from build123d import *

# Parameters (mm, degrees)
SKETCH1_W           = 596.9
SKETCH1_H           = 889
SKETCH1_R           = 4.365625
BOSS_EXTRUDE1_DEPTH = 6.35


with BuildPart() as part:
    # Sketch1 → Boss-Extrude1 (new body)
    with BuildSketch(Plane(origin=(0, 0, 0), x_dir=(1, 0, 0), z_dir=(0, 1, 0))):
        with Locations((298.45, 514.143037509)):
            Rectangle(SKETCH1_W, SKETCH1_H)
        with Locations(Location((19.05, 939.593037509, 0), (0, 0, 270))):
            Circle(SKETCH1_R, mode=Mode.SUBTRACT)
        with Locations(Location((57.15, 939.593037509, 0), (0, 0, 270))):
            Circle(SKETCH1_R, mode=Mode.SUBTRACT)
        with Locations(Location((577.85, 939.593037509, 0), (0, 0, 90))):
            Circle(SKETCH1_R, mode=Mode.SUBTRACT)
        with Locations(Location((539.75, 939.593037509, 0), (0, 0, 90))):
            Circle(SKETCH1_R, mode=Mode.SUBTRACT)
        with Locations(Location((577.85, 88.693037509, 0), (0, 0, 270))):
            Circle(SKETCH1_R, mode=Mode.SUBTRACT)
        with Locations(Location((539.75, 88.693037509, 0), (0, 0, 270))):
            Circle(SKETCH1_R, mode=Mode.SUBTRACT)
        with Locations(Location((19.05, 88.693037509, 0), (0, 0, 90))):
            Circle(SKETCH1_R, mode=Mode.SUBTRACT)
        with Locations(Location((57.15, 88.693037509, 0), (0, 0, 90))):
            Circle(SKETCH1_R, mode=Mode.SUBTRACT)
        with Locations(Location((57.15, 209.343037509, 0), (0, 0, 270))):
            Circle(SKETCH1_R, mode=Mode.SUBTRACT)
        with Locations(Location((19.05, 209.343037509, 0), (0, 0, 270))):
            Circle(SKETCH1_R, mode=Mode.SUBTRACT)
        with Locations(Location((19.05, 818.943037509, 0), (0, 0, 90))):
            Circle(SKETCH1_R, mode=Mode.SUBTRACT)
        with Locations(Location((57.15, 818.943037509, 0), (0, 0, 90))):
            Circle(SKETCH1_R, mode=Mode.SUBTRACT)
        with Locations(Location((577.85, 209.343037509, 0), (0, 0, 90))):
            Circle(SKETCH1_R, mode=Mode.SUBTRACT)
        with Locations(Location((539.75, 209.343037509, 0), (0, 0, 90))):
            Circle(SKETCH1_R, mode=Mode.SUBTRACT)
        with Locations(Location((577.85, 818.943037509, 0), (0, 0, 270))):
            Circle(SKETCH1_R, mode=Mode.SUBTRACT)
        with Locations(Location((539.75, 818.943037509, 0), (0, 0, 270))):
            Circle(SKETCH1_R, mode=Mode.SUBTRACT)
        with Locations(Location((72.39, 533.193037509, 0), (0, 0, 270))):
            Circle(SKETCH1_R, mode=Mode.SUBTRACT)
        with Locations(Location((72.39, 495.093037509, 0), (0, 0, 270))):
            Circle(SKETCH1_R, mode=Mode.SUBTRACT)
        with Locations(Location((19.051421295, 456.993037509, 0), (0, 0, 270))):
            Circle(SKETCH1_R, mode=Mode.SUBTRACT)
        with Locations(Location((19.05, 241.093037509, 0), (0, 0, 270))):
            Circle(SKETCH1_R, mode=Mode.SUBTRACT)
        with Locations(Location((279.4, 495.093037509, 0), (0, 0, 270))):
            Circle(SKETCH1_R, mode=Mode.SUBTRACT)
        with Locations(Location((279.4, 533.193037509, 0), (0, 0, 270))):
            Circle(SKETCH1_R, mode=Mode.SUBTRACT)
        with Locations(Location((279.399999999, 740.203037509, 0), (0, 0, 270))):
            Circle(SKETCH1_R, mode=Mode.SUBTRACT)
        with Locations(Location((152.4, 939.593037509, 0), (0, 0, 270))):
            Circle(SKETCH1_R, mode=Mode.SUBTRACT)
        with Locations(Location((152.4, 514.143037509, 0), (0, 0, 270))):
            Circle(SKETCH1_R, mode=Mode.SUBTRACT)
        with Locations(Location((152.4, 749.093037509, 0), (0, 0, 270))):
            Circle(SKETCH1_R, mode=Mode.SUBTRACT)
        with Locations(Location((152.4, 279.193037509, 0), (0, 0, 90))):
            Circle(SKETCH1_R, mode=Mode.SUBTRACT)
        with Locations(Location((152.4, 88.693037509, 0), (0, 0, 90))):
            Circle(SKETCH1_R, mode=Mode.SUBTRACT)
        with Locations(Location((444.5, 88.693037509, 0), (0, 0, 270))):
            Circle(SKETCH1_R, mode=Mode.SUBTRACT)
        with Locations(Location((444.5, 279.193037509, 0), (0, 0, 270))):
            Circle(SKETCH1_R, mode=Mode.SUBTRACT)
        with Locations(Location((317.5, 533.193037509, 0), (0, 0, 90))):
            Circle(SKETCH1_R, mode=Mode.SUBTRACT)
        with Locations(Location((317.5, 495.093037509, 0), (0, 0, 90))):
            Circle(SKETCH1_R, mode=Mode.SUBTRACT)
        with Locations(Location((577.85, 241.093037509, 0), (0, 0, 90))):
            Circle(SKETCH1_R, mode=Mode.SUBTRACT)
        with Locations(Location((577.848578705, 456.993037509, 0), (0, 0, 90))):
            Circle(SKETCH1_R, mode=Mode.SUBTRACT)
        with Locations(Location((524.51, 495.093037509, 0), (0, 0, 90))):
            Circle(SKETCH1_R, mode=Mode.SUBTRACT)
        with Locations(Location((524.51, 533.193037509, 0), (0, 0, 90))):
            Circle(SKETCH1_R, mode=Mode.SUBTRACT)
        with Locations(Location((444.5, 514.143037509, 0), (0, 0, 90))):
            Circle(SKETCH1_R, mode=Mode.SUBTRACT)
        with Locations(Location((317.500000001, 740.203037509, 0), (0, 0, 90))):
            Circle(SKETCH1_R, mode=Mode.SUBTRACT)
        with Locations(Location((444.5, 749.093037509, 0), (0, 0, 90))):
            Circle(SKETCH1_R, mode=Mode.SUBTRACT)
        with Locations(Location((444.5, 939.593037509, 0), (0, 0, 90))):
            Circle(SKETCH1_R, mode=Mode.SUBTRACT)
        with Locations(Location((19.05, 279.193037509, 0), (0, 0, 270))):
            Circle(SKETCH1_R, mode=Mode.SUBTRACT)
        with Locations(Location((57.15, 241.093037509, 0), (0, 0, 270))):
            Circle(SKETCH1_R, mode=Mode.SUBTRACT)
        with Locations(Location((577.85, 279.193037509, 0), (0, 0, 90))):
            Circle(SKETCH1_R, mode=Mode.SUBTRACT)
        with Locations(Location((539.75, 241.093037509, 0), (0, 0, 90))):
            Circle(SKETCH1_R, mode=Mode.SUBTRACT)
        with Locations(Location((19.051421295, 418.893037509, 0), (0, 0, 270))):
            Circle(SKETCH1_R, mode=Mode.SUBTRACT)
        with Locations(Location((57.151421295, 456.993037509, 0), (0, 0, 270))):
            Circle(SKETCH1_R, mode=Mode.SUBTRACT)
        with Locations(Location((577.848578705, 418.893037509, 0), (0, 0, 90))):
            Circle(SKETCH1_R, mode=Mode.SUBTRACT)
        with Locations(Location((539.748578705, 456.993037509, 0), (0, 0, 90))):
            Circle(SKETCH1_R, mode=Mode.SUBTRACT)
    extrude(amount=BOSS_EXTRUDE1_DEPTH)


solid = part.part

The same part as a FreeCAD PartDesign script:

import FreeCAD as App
import Part
import Sketcher
Q = App.Units.Quantity

doc = App.newDocument("Part")
body = doc.addObject("PartDesign::Body", "Body")

# Sketch on XZ plane
sketch1 = doc.addObject("Sketcher::SketchObject", "Sketch")
body.addObject(sketch1)
sketch1.AttachmentSupport = (doc.XZ_Plane, [""])
sketch1.MapMode = "FlatFace"
sketch1.addGeometry([
    Part.LineSegment(App.Vector(0, -958.643038, 0), App.Vector(0, -69.643038, 0)),  # 0
    Part.LineSegment(App.Vector(0, -69.643038, 0), App.Vector(596.9, -69.643038, 0)),  # 1
    Part.LineSegment(App.Vector(596.9, -69.643038, 0), App.Vector(596.9, -958.643038, 0)),  # 2
    Part.LineSegment(App.Vector(596.9, -958.643038, 0), App.Vector(0, -958.643038, 0)),  # 3
    Part.Circle(App.Vector(19.05, -88.693038, 0), App.Vector(0, 0, 1), 4.365625),  # 4
    Part.Circle(App.Vector(57.15, -88.693038, 0), App.Vector(0, 0, 1), 4.365625),  # 5
    Part.Circle(App.Vector(152.4, -88.693038, 0), App.Vector(0, 0, 1), 4.365625),  # 6
    Part.Circle(App.Vector(19.05, -209.343038, 0), App.Vector(0, 0, 1), 4.365625),  # 7
    Part.Circle(App.Vector(19.05, -241.093038, 0), App.Vector(0, 0, 1), 4.365625),  # 8
    Part.Circle(App.Vector(57.15, -209.343038, 0), App.Vector(0, 0, 1), 4.365625),  # 9
    Part.Circle(App.Vector(57.15, -241.093038, 0), App.Vector(0, 0, 1), 4.365625),  # 10
    Part.Circle(App.Vector(19.05, -279.193038, 0), App.Vector(0, 0, 1), 4.365625),  # 11
    Part.Circle(App.Vector(152.4, -279.193038, 0), App.Vector(0, 0, 1), 4.365625),  # 12
    Part.Circle(App.Vector(19.051421, -418.893038, 0), App.Vector(0, 0, 1), 4.365625),  # 13
    Part.Circle(App.Vector(19.051421, -456.993038, 0), App.Vector(0, 0, 1), 4.365625),  # 14
    Part.Circle(App.Vector(57.151421, -456.993038, 0), App.Vector(0, 0, 1), 4.365625),  # 15
    Part.Circle(App.Vector(72.39, -495.093038, 0), App.Vector(0, 0, 1), 4.365625),  # 16
    Part.Circle(App.Vector(279.4, -495.093038, 0), App.Vector(0, 0, 1), 4.365625),  # 17
    Part.Circle(App.Vector(444.5, -88.693038, 0), App.Vector(0, 0, 1), 4.365625),  # 18
    Part.Circle(App.Vector(539.75, -88.693038, 0), App.Vector(0, 0, 1), 4.365625),  # 19
    Part.Circle(App.Vector(577.85, -88.693038, 0), App.Vector(0, 0, 1), 4.365625),  # 20
    Part.Circle(App.Vector(444.5, -279.193038, 0), App.Vector(0, 0, 1), 4.365625),  # 21
    Part.Circle(App.Vector(539.75, -209.343038, 0), App.Vector(0, 0, 1), 4.365625),  # 22
    Part.Circle(App.Vector(539.75, -241.093038, 0), App.Vector(0, 0, 1), 4.365625),  # 23
    Part.Circle(App.Vector(577.85, -209.343038, 0), App.Vector(0, 0, 1), 4.365625),  # 24
    Part.Circle(App.Vector(577.85, -241.093038, 0), App.Vector(0, 0, 1), 4.365625),  # 25
    Part.Circle(App.Vector(577.85, -279.193038, 0), App.Vector(0, 0, 1), 4.365625),  # 26
    Part.Circle(App.Vector(317.5, -495.093038, 0), App.Vector(0, 0, 1), 4.365625),  # 27
    Part.Circle(App.Vector(539.748579, -456.993038, 0), App.Vector(0, 0, 1), 4.365625),  # 28
    Part.Circle(App.Vector(577.848579, -418.893038, 0), App.Vector(0, 0, 1), 4.365625),  # 29
    Part.Circle(App.Vector(577.848579, -456.993038, 0), App.Vector(0, 0, 1), 4.365625),  # 30
    Part.Circle(App.Vector(524.51, -495.093038, 0), App.Vector(0, 0, 1), 4.365625),  # 31
    Part.Circle(App.Vector(72.39, -533.193038, 0), App.Vector(0, 0, 1), 4.365625),  # 32
    Part.Circle(App.Vector(152.4, -514.143038, 0), App.Vector(0, 0, 1), 4.365625),  # 33
    Part.Circle(App.Vector(279.4, -533.193038, 0), App.Vector(0, 0, 1), 4.365625),  # 34
    Part.Circle(App.Vector(19.05, -818.943038, 0), App.Vector(0, 0, 1), 4.365625),  # 35
    Part.Circle(App.Vector(57.15, -818.943038, 0), App.Vector(0, 0, 1), 4.365625),  # 36
    Part.Circle(App.Vector(152.4, -749.093038, 0), App.Vector(0, 0, 1), 4.365625),  # 37
    Part.Circle(App.Vector(19.05, -939.593038, 0), App.Vector(0, 0, 1), 4.365625),  # 38
    Part.Circle(App.Vector(57.15, -939.593038, 0), App.Vector(0, 0, 1), 4.365625),  # 39
    Part.Circle(App.Vector(152.4, -939.593038, 0), App.Vector(0, 0, 1), 4.365625),  # 40
    Part.Circle(App.Vector(279.4, -740.203038, 0), App.Vector(0, 0, 1), 4.365625),  # 41
    Part.Circle(App.Vector(317.5, -533.193038, 0), App.Vector(0, 0, 1), 4.365625),  # 42
    Part.Circle(App.Vector(444.5, -514.143038, 0), App.Vector(0, 0, 1), 4.365625),  # 43
    Part.Circle(App.Vector(524.51, -533.193038, 0), App.Vector(0, 0, 1), 4.365625),  # 44
    Part.Circle(App.Vector(317.5, -740.203038, 0), App.Vector(0, 0, 1), 4.365625),  # 45
    Part.Circle(App.Vector(444.5, -749.093038, 0), App.Vector(0, 0, 1), 4.365625),  # 46
    Part.Circle(App.Vector(539.75, -818.943038, 0), App.Vector(0, 0, 1), 4.365625),  # 47
    Part.Circle(App.Vector(577.85, -818.943038, 0), App.Vector(0, 0, 1), 4.365625),  # 48
    Part.Circle(App.Vector(444.5, -939.593038, 0), App.Vector(0, 0, 1), 4.365625),  # 49
    Part.Circle(App.Vector(539.75, -939.593038, 0), App.Vector(0, 0, 1), 4.365625),  # 50
    Part.Circle(App.Vector(577.85, -939.593038, 0), App.Vector(0, 0, 1), 4.365625),  # 51
], False)
sketch1.addConstraint([
    Sketcher.Constraint("Coincident", 0, 2, 1, 1),
    Sketcher.Constraint("Coincident", 1, 2, 2, 1),
    Sketcher.Constraint("Coincident", 2, 2, 3, 1),
    Sketcher.Constraint("Coincident", 3, 2, 0, 1),
    Sketcher.Constraint("Vertical", 0),
    Sketcher.Constraint("Horizontal", 1),
    Sketcher.Constraint("Vertical", 2),
    Sketcher.Constraint("Horizontal", 3),
    Sketcher.Constraint("Equal", 4, 5),
    Sketcher.Constraint("Equal", 5, 6),
    Sketcher.Constraint("Equal", 6, 7),
    Sketcher.Constraint("Equal", 7, 8),
    Sketcher.Constraint("Equal", 8, 9),
    Sketcher.Constraint("Equal", 9, 10),
    Sketcher.Constraint("Equal", 10, 11),
    Sketcher.Constraint("Equal", 11, 12),
    Sketcher.Constraint("Equal", 12, 13),
    Sketcher.Constraint("Equal", 13, 14),
    Sketcher.Constraint("Equal", 14, 15),
    Sketcher.Constraint("Equal", 15, 16),
    Sketcher.Constraint("Equal", 16, 17),
    Sketcher.Constraint("Equal", 17, 18),
    Sketcher.Constraint("Equal", 18, 19),
    Sketcher.Constraint("Equal", 19, 20),
    Sketcher.Constraint("Equal", 20, 21),
    Sketcher.Constraint("Equal", 21, 22),
    Sketcher.Constraint("Equal", 22, 23),
    Sketcher.Constraint("Equal", 23, 24),
    Sketcher.Constraint("Equal", 24, 25),
    Sketcher.Constraint("Equal", 25, 26),
    Sketcher.Constraint("Equal", 26, 27),
    Sketcher.Constraint("Equal", 27, 28),
    Sketcher.Constraint("Equal", 28, 29),
    Sketcher.Constraint("Equal", 29, 30),
    Sketcher.Constraint("Equal", 30, 31),
    Sketcher.Constraint("Equal", 31, 32),
    Sketcher.Constraint("Equal", 32, 33),
    Sketcher.Constraint("Equal", 33, 34),
    Sketcher.Constraint("Equal", 34, 35),
    Sketcher.Constraint("Equal", 35, 36),
    Sketcher.Constraint("Equal", 36, 37),
    Sketcher.Constraint("Equal", 37, 38),
    Sketcher.Constraint("Equal", 38, 39),
    Sketcher.Constraint("Equal", 39, 40),
    Sketcher.Constraint("Equal", 40, 41),
    Sketcher.Constraint("Equal", 41, 42),
    Sketcher.Constraint("Equal", 42, 43),
    Sketcher.Constraint("Equal", 43, 44),
    Sketcher.Constraint("Equal", 44, 45),
    Sketcher.Constraint("Equal", 45, 46),
    Sketcher.Constraint("Equal", 46, 47),
    Sketcher.Constraint("Equal", 47, 48),
    Sketcher.Constraint("Equal", 48, 49),
    Sketcher.Constraint("Equal", 49, 50),
    Sketcher.Constraint("Equal", 50, 51),
    Sketcher.Constraint("PointOnObject", 0, 2, -2),
    Sketcher.Constraint("Horizontal", 4, 3, 5, 3),
    Sketcher.Constraint("Horizontal", 5, 3, 6, 3),
    Sketcher.Constraint("Horizontal", 7, 3, 9, 3),
    Sketcher.Constraint("Horizontal", 8, 3, 10, 3),
    Sketcher.Constraint("Horizontal", 11, 3, 12, 3),
    Sketcher.Constraint("Horizontal", 14, 3, 15, 3),
    Sketcher.Constraint("Horizontal", 16, 3, 17, 3),
    Sketcher.Constraint("Horizontal", 6, 3, 18, 3),
    Sketcher.Constraint("Horizontal", 18, 3, 19, 3),
    Sketcher.Constraint("Horizontal", 19, 3, 20, 3),
    Sketcher.Constraint("Horizontal", 12, 3, 21, 3),
    Sketcher.Constraint("Horizontal", 9, 3, 22, 3),
    Sketcher.Constraint("Horizontal", 10, 3, 23, 3),
    Sketcher.Constraint("Horizontal", 22, 3, 24, 3),
    Sketcher.Constraint("Horizontal", 23, 3, 25, 3),
    Sketcher.Constraint("Horizontal", 21, 3, 26, 3),
    Sketcher.Constraint("Horizontal", 17, 3, 27, 3),
    Sketcher.Constraint("Horizontal", 15, 3, 28, 3),
    Sketcher.Constraint("Horizontal", 13, 3, 29, 3),
    Sketcher.Constraint("Horizontal", 28, 3, 30, 3),
    Sketcher.Constraint("Horizontal", 27, 3, 31, 3),
    Sketcher.Constraint("Horizontal", 32, 3, 34, 3),
    Sketcher.Constraint("Horizontal", 35, 3, 36, 3),
    Sketcher.Constraint("Horizontal", 38, 3, 39, 3),
    Sketcher.Constraint("Horizontal", 39, 3, 40, 3),
    Sketcher.Constraint("Horizontal", 34, 3, 42, 3),
    Sketcher.Constraint("Horizontal", 33, 3, 43, 3),
    Sketcher.Constraint("Horizontal", 42, 3, 44, 3),
    Sketcher.Constraint("Horizontal", 41, 3, 45, 3),
    Sketcher.Constraint("Horizontal", 37, 3, 46, 3),
    Sketcher.Constraint("Horizontal", 36, 3, 47, 3),
    Sketcher.Constraint("Horizontal", 47, 3, 48, 3),
    Sketcher.Constraint("Horizontal", 40, 3, 49, 3),
    Sketcher.Constraint("Horizontal", 49, 3, 50, 3),
    Sketcher.Constraint("Horizontal", 50, 3, 51, 3),
    Sketcher.Constraint("Vertical", 4, 3, 7, 3),
    Sketcher.Constraint("Vertical", 7, 3, 8, 3),
    Sketcher.Constraint("Vertical", 5, 3, 9, 3),
    Sketcher.Constraint("Vertical", 9, 3, 10, 3),
    Sketcher.Constraint("Vertical", 8, 3, 11, 3),
    Sketcher.Constraint("Vertical", 6, 3, 12, 3),
    Sketcher.Constraint("Vertical", 13, 3, 14, 3),
    Sketcher.Constraint("Vertical", 18, 3, 21, 3),
    Sketcher.Constraint("Vertical", 19, 3, 22, 3),
    Sketcher.Constraint("Vertical", 22, 3, 23, 3),
    Sketcher.Constraint("Vertical", 20, 3, 24, 3),
    Sketcher.Constraint("Vertical", 24, 3, 25, 3),
    Sketcher.Constraint("Vertical", 25, 3, 26, 3),
    Sketcher.Constraint("Vertical", 29, 3, 30, 3),
    Sketcher.Constraint("Vertical", 16, 3, 32, 3),
    Sketcher.Constraint("Vertical", 12, 3, 33, 3),
    Sketcher.Constraint("Vertical", 17, 3, 34, 3),
    Sketcher.Constraint("Vertical", 11, 3, 35, 3),
    Sketcher.Constraint("Vertical", 10, 3, 36, 3),
    Sketcher.Constraint("Vertical", 33, 3, 37, 3),
    Sketcher.Constraint("Vertical", 35, 3, 38, 3),
    Sketcher.Constraint("Vertical", 36, 3, 39, 3),
    Sketcher.Constraint("Vertical", 37, 3, 40, 3),
    Sketcher.Constraint("Vertical", 34, 3, 41, 3),
    Sketcher.Constraint("Vertical", 27, 3, 42, 3),
    Sketcher.Constraint("Vertical", 21, 3, 43, 3),
    Sketcher.Constraint("Vertical", 31, 3, 44, 3),
    Sketcher.Constraint("Vertical", 42, 3, 45, 3),
    Sketcher.Constraint("Vertical", 43, 3, 46, 3),
    Sketcher.Constraint("Vertical", 23, 3, 47, 3),
    Sketcher.Constraint("Vertical", 26, 3, 48, 3),
    Sketcher.Constraint("Vertical", 46, 3, 49, 3),
    Sketcher.Constraint("Vertical", 47, 3, 50, 3),
    Sketcher.Constraint("Vertical", 48, 3, 51, 3),
    Sketcher.Constraint("DistanceY", 0, 1, 0, 2, Q("35 in")),
    Sketcher.Constraint("Diameter", 4, Q("0.34375 in")),
    Sketcher.Constraint("DistanceX", 1, 1, 1, 2, Q("23.5 in")),
    Sketcher.Constraint("DistanceX", -1, 1, 6, 3, Q("6 in")),
    Sketcher.Constraint("DistanceX", -1, 1, 17, 3, Q("11 in")),
    Sketcher.Constraint("DistanceY", 8, 3, 4, 3, Q("6 in")),
    Sketcher.Constraint("DistanceY", 13, 3, 8, 3, Q("7 in")),
    Sketcher.Constraint("DistanceY", 14, 3, 11, 3, Q("7 in")),
    Sketcher.Constraint("DistanceY", 16, 3, 13, 3, Q("3 in")),
    Sketcher.Constraint("DistanceX", 5, 3, 19, 3, Q("19 in")),
    Sketcher.Constraint("DistanceX", 27, 3, 21, 3, Q("5 in")),
    Sketcher.Constraint("DistanceY", 32, 3, 15, 3, Q("3 in")),
    Sketcher.Constraint("DistanceY", 35, 3, 33, 3, Q("12 in")),
    Sketcher.Constraint("DistanceY", 38, 3, 32, 3, Q("16 in")),
    Sketcher.Constraint("DistanceX", 18, 3, 1, 2, Q("6 in")),
    Sketcher.Constraint("DistanceX", 4, 3, 5, 3, Q("1.5 in")),
    Sketcher.Constraint("DistanceY", 11, 3, 8, 3, Q("1.5 in")),
    Sketcher.Constraint("DistanceX", 14, 3, 15, 3, Q("1.5 in")),
    Sketcher.Constraint("DistanceX", 11, 3, 16, 3, Q("2.1 in")),
    Sketcher.Constraint("DistanceX", 19, 3, 20, 3, Q("1.5 in")),
    Sketcher.Constraint("DistanceX", 28, 3, 29, 3, Q("1.5 in")),
    Sketcher.Constraint("DistanceX", 31, 3, 26, 3, Q("2.1 in")),
    Sketcher.Constraint("DistanceY", 37, 3, 32, 3, Q("8.5 in")),
    Sketcher.Constraint("DistanceY", 36, 3, 41, 3, Q("3.1 in")),
    Sketcher.Constraint("DistanceY", 7, 3, 0, 2, Q("5.5 in")),
    Sketcher.Constraint("DistanceY", 2, 2, 48, 3, Q("5.5 in")),
    Sketcher.Constraint("DistanceX", -1, 1, 4, 3, Q("0.75 in")),
    Sketcher.Constraint("DistanceY", 7, 3, 4, 3, Q("4.75 in")),
    Sketcher.Constraint("DistanceX", -1, 1, 13, 3, 19.051421),
    Sketcher.Constraint("DistanceX", -1, 1, 28, 3, 539.748579),
    Sketcher.Constraint("DistanceY", 4, 3, -1, 1, 88.693038),
])
pad1 = doc.addObject("PartDesign::Pad", "Pad")
body.addObject(pad1)
pad1.Profile = sketch1
pad1.Length = Q("0.25 in")
pad1.Reversed = True

doc.recompute()
